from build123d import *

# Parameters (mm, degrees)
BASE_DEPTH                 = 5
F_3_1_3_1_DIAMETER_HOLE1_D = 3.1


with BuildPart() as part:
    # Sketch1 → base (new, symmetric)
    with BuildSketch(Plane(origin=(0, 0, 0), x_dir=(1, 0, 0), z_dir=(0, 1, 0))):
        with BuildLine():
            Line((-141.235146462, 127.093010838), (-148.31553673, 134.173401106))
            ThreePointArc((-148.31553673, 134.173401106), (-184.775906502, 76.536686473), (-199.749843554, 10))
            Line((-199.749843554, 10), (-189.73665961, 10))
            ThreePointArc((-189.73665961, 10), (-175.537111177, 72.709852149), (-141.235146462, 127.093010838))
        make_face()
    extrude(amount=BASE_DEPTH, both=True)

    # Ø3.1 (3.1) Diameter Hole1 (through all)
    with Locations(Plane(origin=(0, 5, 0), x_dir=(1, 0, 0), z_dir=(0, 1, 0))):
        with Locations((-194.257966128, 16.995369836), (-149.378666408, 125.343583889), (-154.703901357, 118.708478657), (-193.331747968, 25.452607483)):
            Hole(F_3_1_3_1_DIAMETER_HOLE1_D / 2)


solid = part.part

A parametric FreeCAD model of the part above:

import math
import FreeCAD as App
import Part
import Sketcher

V = App.Vector
Q = App.Units.Quantity

doc = App.newDocument("Part")
body = doc.addObject("PartDesign::Body", "Body")

sketch1 = body.newObject("Sketcher::SketchObject", "Sketch")
sketch1.AttachmentSupport = (doc.getObject("XZ_Plane"), [""])
sketch1.MapMode = "FlatFace"
sketch1.addGeometry([
    Part.LineSegment(V(-141, -127, 0), V(-148, -134, 0)),
    Part.ArcOfCircle(Part.Circle(V(0, 0, 0), V(0, 0, 1), 200), math.radians(-177), math.radians(-138)),
    Part.LineSegment(V(-200, -10, 0), V(-190, -10, 0)),
    Part.ArcOfCircle(Part.Circle(V(0, 0, 0), V(0, 0, 1), 190), math.radians(-177), math.radians(-138)),
], False)
sketch1.addConstraint([
    Sketcher.Constraint("Coincident", 0, 2, 1, 2),
    Sketcher.Constraint("Coincident", 1, 1, 2, 1),
    Sketcher.Constraint("Coincident", 2, 2, 3, 1),
    Sketcher.Constraint("Coincident", 3, 2, 0, 1),
    Sketcher.Constraint("Horizontal", 2),
    Sketcher.Constraint("Coincident", 1, 3, -1, 1),
    Sketcher.Constraint("Coincident", 3, 3, -1, 1),
    Sketcher.Constraint("Radius", 1, Q("200 mm")),
    Sketcher.Constraint("Radius", 3, Q("190 mm")),
    Sketcher.Constraint("Angle", 0, Q("-135 deg")),
    Sketcher.Constraint("DistanceY", 1, 1, -1, 1, Q("10 mm")),
    Sketcher.Constraint("DistanceY", 0, 2, -1, 1, Q("134.173401 mm")),
])
pad1 = body.newObject("PartDesign::Pad", "Pad")
pad1.Profile = sketch1
pad1.Length = 10
pad1.Midplane = True

sketch2 = body.newObject("Sketcher::SketchObject", "Sketch001")
sketch2.AttachmentSupport = (doc.getObject("XZ_Plane"), [""])
sketch2.MapMode = "FlatFace"
sketch2.AttachmentOffset = App.Placement(V(0, 0, -5), App.Rotation())
sketch2.addGeometry([
    Part.Circle(V(-194.3, -17, 0), V(0, 0, 1), 1.6),
    Part.Circle(V(-149.4, -125.3, 0), V(0, 0, 1), 1.6),
    Part.Circle(V(-154.7, -118.7, 0), V(0, 0, 1), 1.6),
    Part.Circle(V(-193.3, -25.5, 0), V(0, 0, 1), 1.6),
], False)
sketch2.addConstraint([
    Sketcher.Constraint("Equal", 0, 1),
    Sketcher.Constraint("Equal", 1, 2),
    Sketcher.Constraint("Equal", 2, 3),
    Sketcher.Constraint("Diameter", 0, Q("3.1 mm")),
    Sketcher.Constraint("DistanceX", 2, 3, -1, 1, Q("154.703901 mm")),
    Sketcher.Constraint("DistanceX", 0, 3, 1, 3, Q("44.8793 mm")),
    Sketcher.Constraint("DistanceY", 0, 3, -1, 1, Q("16.99537 mm")),
    Sketcher.Constraint("DistanceY", 2, 3, -1, 1, Q("118.708479 mm")),
    Sketcher.Constraint("DistanceX", 0, 3, 3, 3, Q("0.926218 mm")),
    Sketcher.Constraint("DistanceY", 2, 3, 3, 3, Q("93.255871 mm")),
    Sketcher.Constraint("DistanceX", 0, 3, -1, 1, Q("194.257966 mm")),
    Sketcher.Constraint("DistanceY", 1, 3, -1, 1, Q("125.343584 mm")),
])
doc.recompute()
hole = body.newObject("PartDesign::Hole", "Hole")
hole.Profile = sketch2
hole.ThreadType = "None"
hole.Diameter = 3.1
hole.DepthType = "ThroughAll"
hole.Reversed = True

doc.recompute()
